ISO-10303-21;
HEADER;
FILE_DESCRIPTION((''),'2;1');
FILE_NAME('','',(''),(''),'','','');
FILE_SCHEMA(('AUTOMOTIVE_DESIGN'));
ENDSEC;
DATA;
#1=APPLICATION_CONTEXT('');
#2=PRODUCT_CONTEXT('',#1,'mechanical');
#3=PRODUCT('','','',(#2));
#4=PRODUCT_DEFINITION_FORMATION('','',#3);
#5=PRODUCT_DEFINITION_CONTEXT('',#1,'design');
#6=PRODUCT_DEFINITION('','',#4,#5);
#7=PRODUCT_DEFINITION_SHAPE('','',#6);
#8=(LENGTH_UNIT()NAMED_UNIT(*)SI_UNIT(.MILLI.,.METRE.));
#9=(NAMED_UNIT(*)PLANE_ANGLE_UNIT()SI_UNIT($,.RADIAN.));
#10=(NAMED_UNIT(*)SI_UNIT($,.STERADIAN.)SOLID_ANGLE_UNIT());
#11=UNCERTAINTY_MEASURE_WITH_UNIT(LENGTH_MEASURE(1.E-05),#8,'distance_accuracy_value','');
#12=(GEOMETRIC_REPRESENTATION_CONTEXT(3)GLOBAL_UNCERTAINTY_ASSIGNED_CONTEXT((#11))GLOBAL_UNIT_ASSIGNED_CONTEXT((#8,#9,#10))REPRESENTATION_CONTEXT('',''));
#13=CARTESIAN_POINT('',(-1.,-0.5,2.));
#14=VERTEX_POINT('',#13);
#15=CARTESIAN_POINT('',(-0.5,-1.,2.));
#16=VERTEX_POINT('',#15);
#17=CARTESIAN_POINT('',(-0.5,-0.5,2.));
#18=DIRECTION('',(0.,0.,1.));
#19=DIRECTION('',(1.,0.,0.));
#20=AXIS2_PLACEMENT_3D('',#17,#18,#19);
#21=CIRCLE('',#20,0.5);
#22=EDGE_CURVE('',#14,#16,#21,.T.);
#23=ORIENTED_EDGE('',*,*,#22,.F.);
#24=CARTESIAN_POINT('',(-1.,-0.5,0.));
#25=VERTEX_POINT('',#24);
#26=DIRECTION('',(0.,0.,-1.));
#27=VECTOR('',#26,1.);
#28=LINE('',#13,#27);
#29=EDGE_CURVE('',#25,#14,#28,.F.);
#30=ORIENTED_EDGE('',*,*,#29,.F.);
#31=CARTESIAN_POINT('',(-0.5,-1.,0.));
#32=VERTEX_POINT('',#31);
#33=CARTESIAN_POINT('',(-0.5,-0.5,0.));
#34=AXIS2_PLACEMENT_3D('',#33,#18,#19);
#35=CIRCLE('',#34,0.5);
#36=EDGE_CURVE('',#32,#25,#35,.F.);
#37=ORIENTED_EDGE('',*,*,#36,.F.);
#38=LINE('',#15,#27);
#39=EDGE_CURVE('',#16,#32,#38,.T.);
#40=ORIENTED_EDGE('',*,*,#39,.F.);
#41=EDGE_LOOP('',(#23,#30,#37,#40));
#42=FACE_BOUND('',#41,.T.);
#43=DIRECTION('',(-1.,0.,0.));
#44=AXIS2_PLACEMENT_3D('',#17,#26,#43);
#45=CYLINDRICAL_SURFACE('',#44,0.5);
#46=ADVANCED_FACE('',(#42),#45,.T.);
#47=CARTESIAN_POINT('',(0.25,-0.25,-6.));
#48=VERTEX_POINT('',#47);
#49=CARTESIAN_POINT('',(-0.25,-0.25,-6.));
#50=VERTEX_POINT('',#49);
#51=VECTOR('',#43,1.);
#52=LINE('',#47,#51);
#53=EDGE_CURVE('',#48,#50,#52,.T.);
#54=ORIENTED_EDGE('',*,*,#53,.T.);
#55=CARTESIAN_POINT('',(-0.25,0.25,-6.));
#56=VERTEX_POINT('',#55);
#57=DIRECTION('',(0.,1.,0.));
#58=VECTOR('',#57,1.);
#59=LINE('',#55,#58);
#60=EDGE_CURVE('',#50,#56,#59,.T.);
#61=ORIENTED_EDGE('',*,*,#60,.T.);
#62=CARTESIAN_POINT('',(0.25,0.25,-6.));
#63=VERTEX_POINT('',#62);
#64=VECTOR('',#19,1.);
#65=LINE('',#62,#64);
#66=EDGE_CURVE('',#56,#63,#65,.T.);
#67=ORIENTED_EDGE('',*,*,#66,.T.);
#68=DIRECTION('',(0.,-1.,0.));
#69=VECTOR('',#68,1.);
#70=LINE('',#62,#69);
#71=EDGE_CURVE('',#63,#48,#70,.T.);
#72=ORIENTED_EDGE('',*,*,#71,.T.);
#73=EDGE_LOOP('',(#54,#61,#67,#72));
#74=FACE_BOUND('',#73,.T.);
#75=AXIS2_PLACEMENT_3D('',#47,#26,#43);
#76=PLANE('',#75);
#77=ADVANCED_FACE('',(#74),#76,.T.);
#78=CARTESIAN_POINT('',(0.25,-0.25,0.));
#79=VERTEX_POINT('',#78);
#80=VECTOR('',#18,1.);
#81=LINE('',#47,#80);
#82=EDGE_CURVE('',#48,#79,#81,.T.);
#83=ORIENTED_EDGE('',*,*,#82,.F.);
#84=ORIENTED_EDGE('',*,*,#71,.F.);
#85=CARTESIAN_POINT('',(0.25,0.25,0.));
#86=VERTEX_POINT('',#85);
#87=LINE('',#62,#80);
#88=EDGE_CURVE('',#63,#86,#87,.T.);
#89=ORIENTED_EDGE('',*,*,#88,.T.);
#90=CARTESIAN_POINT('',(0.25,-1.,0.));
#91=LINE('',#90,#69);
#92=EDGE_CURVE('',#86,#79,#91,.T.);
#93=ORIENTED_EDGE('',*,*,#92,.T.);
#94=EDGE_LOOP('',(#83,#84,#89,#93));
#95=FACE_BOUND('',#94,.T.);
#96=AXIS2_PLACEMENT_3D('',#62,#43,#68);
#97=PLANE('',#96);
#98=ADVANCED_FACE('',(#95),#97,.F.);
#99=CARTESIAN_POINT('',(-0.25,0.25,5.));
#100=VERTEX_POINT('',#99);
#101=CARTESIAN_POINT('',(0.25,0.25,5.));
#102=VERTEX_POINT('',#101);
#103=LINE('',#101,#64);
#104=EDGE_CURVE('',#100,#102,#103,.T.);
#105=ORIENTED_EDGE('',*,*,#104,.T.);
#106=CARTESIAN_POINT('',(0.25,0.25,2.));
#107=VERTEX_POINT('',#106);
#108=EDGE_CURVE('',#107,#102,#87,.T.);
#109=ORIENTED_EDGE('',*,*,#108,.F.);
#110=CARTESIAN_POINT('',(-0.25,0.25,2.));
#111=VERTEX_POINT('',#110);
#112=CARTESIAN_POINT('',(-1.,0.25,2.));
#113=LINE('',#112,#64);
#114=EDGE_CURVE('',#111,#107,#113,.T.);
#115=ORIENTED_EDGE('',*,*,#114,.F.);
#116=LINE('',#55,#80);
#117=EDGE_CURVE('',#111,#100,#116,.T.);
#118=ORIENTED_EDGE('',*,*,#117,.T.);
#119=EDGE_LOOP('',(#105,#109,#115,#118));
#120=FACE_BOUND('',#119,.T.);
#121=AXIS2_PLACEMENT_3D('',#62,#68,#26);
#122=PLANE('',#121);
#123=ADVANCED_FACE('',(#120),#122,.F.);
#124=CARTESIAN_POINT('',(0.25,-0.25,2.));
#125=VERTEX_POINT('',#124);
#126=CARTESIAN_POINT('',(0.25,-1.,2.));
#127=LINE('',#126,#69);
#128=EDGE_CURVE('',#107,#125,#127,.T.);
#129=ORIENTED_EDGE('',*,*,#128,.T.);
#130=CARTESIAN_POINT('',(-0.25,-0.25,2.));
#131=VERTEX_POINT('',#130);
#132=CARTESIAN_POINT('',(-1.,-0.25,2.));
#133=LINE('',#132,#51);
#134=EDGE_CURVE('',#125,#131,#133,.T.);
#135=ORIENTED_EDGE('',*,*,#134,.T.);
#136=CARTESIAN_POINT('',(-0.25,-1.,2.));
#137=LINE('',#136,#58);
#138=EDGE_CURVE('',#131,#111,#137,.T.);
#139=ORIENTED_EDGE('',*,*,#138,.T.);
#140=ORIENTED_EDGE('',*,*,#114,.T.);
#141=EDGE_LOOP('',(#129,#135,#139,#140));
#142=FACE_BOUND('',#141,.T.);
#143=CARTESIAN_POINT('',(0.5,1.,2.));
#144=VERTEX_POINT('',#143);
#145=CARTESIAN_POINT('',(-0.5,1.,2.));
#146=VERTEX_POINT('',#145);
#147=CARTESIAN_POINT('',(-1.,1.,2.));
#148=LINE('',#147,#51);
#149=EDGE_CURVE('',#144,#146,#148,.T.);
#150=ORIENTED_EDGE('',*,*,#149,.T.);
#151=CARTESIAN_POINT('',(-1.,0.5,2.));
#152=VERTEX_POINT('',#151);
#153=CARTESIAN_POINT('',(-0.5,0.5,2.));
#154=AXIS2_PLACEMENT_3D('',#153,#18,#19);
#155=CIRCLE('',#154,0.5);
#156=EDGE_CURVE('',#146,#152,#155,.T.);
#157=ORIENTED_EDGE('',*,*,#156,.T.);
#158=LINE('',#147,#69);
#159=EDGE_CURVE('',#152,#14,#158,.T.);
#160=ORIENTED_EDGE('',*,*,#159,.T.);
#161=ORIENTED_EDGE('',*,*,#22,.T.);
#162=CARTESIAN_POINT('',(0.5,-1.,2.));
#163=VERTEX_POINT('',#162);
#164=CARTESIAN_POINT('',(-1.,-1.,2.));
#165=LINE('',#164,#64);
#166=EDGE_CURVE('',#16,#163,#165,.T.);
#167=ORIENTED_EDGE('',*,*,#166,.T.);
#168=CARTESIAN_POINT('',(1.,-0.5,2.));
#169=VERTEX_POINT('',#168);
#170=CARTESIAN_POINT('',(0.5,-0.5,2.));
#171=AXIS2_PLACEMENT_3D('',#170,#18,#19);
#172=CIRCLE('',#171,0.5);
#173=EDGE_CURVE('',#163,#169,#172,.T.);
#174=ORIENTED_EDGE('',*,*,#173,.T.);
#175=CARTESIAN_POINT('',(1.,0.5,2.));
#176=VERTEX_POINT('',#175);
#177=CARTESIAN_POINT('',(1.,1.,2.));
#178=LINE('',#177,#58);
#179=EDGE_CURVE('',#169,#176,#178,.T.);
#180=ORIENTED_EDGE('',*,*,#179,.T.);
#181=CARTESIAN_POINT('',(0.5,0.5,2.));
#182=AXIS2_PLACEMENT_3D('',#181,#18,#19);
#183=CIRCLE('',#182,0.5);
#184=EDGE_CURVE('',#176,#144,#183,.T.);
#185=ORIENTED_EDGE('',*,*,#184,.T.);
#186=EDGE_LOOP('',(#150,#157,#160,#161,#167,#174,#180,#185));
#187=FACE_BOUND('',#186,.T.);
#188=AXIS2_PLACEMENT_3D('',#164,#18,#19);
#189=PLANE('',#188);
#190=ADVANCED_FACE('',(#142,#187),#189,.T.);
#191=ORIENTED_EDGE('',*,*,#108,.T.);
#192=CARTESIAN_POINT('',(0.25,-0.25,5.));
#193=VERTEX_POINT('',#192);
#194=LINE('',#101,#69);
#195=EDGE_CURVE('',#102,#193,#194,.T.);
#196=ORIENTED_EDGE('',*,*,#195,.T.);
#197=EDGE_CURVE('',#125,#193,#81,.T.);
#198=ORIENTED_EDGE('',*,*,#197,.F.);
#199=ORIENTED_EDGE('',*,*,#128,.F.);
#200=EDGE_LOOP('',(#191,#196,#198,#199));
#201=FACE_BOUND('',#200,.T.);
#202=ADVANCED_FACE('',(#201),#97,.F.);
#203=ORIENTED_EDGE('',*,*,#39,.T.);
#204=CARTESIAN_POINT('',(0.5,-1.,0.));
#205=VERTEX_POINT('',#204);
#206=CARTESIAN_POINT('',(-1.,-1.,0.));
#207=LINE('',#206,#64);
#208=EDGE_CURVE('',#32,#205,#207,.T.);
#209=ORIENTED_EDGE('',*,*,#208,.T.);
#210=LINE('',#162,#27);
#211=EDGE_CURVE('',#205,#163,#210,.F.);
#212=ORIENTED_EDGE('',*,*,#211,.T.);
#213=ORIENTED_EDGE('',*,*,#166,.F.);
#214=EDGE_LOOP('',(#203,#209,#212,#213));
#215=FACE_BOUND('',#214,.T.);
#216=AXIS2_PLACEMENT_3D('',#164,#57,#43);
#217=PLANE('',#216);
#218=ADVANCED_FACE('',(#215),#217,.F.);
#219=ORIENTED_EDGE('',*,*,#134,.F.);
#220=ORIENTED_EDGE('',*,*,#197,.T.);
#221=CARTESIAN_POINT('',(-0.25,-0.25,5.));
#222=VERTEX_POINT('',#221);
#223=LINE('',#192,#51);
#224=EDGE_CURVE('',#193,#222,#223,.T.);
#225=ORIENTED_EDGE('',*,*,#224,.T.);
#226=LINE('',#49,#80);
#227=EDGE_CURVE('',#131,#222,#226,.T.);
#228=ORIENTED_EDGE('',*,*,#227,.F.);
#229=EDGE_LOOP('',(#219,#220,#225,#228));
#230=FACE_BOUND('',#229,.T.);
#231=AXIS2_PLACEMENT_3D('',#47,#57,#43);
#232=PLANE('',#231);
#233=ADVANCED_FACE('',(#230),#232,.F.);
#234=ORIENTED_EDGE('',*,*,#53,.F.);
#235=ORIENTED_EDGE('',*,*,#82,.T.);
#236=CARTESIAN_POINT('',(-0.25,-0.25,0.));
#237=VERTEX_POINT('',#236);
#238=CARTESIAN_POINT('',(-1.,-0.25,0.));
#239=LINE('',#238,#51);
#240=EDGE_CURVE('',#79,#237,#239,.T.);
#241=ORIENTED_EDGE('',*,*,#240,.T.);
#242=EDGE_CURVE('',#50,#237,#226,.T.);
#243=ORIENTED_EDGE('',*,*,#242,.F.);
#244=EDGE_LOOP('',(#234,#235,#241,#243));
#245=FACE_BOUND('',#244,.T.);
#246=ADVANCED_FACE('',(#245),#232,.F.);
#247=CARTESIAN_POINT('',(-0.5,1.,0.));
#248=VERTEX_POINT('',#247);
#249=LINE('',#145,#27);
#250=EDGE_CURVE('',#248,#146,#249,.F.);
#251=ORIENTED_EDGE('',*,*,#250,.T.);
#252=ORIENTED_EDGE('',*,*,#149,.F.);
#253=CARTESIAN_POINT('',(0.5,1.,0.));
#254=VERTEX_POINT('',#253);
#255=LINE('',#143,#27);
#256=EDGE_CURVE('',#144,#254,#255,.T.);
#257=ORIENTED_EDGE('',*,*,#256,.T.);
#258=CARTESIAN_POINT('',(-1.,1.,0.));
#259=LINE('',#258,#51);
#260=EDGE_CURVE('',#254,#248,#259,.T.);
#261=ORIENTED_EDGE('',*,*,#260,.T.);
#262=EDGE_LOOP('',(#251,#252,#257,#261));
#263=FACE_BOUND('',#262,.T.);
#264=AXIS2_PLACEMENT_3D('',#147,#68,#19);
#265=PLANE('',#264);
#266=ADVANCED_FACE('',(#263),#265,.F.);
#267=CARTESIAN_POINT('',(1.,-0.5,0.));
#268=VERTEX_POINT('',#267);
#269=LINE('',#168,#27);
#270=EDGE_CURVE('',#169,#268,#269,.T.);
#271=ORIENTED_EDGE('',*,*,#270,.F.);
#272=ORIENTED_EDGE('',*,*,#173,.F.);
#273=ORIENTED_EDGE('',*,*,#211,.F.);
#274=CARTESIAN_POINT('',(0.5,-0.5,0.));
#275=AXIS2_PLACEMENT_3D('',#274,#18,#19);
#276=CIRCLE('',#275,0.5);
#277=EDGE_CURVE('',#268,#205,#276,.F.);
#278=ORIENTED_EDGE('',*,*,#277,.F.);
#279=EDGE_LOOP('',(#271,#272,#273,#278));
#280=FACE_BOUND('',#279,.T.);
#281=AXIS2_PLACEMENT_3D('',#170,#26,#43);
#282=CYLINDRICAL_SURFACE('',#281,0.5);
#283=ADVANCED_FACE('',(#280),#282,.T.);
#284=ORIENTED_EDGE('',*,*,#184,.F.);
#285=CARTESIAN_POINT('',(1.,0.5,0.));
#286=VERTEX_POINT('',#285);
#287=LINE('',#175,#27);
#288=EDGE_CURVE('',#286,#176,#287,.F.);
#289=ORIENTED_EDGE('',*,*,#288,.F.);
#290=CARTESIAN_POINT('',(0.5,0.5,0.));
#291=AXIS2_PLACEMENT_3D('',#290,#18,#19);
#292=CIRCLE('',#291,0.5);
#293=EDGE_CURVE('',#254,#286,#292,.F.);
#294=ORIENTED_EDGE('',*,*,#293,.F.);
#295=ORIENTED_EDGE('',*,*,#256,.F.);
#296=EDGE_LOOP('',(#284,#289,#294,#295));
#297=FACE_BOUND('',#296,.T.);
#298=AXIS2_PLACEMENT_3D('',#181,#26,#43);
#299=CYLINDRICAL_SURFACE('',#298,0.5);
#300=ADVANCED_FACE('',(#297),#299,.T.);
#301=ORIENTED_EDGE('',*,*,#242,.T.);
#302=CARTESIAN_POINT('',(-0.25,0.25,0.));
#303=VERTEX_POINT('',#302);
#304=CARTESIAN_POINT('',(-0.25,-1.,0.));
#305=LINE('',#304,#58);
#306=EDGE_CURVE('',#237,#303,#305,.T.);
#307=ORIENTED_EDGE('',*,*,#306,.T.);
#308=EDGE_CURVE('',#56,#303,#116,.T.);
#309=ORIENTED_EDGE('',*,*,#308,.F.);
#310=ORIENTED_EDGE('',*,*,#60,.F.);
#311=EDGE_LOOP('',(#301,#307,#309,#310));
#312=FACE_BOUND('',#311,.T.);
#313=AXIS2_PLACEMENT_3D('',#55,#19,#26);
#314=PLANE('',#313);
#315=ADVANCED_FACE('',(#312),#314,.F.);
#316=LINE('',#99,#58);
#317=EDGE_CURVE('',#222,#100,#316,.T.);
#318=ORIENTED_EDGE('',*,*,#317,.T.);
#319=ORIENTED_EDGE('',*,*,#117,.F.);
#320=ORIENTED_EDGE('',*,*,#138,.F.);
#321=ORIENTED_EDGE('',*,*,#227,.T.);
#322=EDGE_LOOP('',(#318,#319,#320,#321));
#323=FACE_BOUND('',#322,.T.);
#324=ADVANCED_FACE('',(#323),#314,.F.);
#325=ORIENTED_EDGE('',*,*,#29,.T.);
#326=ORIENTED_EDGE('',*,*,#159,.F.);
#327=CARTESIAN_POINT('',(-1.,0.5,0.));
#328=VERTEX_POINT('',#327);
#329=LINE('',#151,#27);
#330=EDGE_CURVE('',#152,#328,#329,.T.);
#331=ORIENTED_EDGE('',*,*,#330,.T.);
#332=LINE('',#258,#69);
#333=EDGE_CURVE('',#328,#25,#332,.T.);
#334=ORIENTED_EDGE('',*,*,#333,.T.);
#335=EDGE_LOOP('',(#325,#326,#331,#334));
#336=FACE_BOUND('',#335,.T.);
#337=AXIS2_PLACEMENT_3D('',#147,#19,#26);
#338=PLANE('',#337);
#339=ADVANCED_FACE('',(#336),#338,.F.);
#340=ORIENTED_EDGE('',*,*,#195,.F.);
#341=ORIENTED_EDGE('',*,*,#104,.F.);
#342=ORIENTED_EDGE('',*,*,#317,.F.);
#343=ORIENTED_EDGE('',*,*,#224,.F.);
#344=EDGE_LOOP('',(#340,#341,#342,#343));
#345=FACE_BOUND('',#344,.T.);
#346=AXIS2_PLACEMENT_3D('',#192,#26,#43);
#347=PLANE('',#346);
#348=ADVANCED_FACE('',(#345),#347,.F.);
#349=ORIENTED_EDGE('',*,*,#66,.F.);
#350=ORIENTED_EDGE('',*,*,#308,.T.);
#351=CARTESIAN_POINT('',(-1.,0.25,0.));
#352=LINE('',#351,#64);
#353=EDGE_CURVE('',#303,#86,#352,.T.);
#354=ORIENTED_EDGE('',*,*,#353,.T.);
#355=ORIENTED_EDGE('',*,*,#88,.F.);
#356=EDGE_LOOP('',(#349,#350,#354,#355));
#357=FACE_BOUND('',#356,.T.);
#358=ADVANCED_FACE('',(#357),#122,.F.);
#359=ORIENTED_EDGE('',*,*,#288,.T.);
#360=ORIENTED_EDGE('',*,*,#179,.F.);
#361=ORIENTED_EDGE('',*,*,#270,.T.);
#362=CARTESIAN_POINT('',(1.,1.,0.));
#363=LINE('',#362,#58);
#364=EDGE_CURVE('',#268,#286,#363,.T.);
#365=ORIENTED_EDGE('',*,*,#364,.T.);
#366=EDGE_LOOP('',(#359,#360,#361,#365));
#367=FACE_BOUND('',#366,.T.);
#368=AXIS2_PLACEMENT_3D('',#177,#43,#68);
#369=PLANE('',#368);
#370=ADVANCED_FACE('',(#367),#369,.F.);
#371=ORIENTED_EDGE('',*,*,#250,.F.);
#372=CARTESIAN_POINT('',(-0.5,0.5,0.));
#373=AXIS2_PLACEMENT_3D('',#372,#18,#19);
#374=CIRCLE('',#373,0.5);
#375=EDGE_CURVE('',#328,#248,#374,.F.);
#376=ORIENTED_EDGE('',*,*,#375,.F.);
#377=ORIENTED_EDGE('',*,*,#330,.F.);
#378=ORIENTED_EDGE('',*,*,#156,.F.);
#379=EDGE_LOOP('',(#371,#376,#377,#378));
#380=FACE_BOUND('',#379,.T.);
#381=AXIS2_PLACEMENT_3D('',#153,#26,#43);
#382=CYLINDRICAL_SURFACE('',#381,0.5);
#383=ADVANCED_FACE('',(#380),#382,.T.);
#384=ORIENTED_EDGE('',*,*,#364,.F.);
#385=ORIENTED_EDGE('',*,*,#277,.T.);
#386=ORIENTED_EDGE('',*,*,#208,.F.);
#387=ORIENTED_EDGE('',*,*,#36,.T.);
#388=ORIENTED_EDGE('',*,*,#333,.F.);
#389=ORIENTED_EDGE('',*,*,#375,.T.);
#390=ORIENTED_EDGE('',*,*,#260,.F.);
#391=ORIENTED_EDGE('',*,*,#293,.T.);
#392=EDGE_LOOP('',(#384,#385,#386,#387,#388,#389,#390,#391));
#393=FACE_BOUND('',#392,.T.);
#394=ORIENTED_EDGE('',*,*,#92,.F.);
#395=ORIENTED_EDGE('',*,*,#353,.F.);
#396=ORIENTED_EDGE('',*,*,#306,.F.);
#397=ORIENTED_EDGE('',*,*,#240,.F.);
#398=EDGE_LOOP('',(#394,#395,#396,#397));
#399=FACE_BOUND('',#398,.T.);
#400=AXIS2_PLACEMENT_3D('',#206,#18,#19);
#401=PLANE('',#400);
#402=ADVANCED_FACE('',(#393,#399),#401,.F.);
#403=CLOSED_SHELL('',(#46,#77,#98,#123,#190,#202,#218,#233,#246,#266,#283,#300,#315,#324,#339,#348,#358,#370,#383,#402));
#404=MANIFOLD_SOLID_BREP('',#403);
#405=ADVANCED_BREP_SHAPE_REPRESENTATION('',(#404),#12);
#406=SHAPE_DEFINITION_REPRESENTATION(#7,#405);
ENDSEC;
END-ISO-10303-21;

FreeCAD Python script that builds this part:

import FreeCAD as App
import Part
import Sketcher


def edges_at(feature, points):
    """Names of the edges that pass closest to the given points."""
    edges = feature.Shape.Edges
    near = lambda p: min(range(len(edges)), key=lambda i: edges[i].distToShape(Part.Vertex(*p))[0])
    return sorted({f"Edge{near(p) + 1}" for p in points})


def add_polygon(sketch, points):
    """Adds a closed chain of lines whose ends are joined by coincident constraints."""
    first, n = sketch.GeometryCount, len(points)
    for a, b in zip(points, points[1:] + points[:1]):
        sketch.addGeometry(Part.LineSegment(App.Vector(*a, 0), App.Vector(*b, 0)), False)
    for i in range(n):
        sketch.addConstraint(Sketcher.Constraint("Coincident", first + i, 2, first + (i + 1) % n, 1))

doc = App.newDocument("Part")
body = doc.addObject("PartDesign::Body", "Body")

# Sketch on XY plane
sketch1 = body.newObject("Sketcher::SketchObject", "Sketch")
sketch1.AttachmentSupport = (doc.getObject("XY_Plane"), [""])
sketch1.MapMode = "FlatFace"
add_polygon(sketch1, [(-1, 1), (-1, -1), (1, -1), (1, 1)])  # lines 0-3
sketch1.addConstraint(Sketcher.Constraint("Vertical", 0))
sketch1.addConstraint(Sketcher.Constraint("Horizontal", 1))
sketch1.addConstraint(Sketcher.Constraint("Vertical", 2))
sketch1.addConstraint(Sketcher.Constraint("Horizontal", 3))
sketch1.addConstraint(Sketcher.Constraint("Symmetric", 0, 2, 2, 2, -1, 1))
sketch1.addConstraint(Sketcher.Constraint("Equal", 3, 0))
sketch1.addConstraint(Sketcher.Constraint("DistanceX", 1, 1, 1, 2, 2.0))
pad1 = body.newObject("PartDesign::Pad", "Pad")
pad1.Profile = sketch1
pad1.Length = 2

# Sketch on XY plane
sketch2 = body.newObject("Sketcher::SketchObject", "Sketch001")
sketch2.AttachmentSupport = (doc.getObject("XY_Plane"), [""])
sketch2.MapMode = "FlatFace"
sketch2.AttachmentOffset = App.Placement(App.Vector(0, 0, 5), App.Rotation())
add_polygon(sketch2, [(0.2, 0.2), (0.2, -0.2), (-0.2, -0.2), (-0.2, 0.2)])  # lines 0-3
sketch2.addConstraint(Sketcher.Constraint("Vertical", 0))
sketch2.addConstraint(Sketcher.Constraint("Horizontal", 1))
sketch2.addConstraint(Sketcher.Constraint("Vertical", 2))
sketch2.addConstraint(Sketcher.Constraint("Horizontal", 3))
sketch2.addConstraint(Sketcher.Constraint("Symmetric", 0, 2, 2, 2, -1, 1))
sketch2.addConstraint(Sketcher.Constraint("Equal", 3, 0))
sketch2.addConstraint(Sketcher.Constraint("DistanceX", 1, 2, 1, 1, 0.5))

# Sketch on XZ plane
sketch3 = body.newObject("Sketcher::SketchObject", "Sketch002")
sketch3.AttachmentSupport = (doc.getObject("XZ_Plane"), [""])
sketch3.MapMode = "FlatFace"
sketch3.AttachmentOffset = App.Placement(App.Vector(0, 0, 0.28), App.Rotation())
sketch3.addGeometry(Part.LineSegment(App.Vector(0, 5, 0), App.Vector(0, -6, 0)), False)
sketch3.addConstraint(Sketcher.Constraint("Vertical", 0))
sketch3.addConstraint(Sketcher.Constraint("PointOnObject", 0, 1, -2))
sketch3.addConstraint(Sketcher.Constraint("DistanceY", 0, 2, 0, 1, 11.0))
sketch3.addConstraint(Sketcher.Constraint("DistanceY", -1, 1, 0, 1, 5.0))
doc.recompute()

additivepipe = body.newObject("PartDesign::AdditivePipe", "AdditivePipe")
additivepipe.Profile = sketch2
additivepipe.Spine = (sketch3, ["Edge1"])
doc.recompute()

fillet = body.newObject("PartDesign::Fillet", "Fillet")
fillet.Base = (additivepipe, edges_at(additivepipe, [
    (-1, 1, 1),
    (1, 1, 1),
    (1, -1, 1),
    (-1, -1, 1),
]))
fillet.Radius = 0.5

doc.recompute()
